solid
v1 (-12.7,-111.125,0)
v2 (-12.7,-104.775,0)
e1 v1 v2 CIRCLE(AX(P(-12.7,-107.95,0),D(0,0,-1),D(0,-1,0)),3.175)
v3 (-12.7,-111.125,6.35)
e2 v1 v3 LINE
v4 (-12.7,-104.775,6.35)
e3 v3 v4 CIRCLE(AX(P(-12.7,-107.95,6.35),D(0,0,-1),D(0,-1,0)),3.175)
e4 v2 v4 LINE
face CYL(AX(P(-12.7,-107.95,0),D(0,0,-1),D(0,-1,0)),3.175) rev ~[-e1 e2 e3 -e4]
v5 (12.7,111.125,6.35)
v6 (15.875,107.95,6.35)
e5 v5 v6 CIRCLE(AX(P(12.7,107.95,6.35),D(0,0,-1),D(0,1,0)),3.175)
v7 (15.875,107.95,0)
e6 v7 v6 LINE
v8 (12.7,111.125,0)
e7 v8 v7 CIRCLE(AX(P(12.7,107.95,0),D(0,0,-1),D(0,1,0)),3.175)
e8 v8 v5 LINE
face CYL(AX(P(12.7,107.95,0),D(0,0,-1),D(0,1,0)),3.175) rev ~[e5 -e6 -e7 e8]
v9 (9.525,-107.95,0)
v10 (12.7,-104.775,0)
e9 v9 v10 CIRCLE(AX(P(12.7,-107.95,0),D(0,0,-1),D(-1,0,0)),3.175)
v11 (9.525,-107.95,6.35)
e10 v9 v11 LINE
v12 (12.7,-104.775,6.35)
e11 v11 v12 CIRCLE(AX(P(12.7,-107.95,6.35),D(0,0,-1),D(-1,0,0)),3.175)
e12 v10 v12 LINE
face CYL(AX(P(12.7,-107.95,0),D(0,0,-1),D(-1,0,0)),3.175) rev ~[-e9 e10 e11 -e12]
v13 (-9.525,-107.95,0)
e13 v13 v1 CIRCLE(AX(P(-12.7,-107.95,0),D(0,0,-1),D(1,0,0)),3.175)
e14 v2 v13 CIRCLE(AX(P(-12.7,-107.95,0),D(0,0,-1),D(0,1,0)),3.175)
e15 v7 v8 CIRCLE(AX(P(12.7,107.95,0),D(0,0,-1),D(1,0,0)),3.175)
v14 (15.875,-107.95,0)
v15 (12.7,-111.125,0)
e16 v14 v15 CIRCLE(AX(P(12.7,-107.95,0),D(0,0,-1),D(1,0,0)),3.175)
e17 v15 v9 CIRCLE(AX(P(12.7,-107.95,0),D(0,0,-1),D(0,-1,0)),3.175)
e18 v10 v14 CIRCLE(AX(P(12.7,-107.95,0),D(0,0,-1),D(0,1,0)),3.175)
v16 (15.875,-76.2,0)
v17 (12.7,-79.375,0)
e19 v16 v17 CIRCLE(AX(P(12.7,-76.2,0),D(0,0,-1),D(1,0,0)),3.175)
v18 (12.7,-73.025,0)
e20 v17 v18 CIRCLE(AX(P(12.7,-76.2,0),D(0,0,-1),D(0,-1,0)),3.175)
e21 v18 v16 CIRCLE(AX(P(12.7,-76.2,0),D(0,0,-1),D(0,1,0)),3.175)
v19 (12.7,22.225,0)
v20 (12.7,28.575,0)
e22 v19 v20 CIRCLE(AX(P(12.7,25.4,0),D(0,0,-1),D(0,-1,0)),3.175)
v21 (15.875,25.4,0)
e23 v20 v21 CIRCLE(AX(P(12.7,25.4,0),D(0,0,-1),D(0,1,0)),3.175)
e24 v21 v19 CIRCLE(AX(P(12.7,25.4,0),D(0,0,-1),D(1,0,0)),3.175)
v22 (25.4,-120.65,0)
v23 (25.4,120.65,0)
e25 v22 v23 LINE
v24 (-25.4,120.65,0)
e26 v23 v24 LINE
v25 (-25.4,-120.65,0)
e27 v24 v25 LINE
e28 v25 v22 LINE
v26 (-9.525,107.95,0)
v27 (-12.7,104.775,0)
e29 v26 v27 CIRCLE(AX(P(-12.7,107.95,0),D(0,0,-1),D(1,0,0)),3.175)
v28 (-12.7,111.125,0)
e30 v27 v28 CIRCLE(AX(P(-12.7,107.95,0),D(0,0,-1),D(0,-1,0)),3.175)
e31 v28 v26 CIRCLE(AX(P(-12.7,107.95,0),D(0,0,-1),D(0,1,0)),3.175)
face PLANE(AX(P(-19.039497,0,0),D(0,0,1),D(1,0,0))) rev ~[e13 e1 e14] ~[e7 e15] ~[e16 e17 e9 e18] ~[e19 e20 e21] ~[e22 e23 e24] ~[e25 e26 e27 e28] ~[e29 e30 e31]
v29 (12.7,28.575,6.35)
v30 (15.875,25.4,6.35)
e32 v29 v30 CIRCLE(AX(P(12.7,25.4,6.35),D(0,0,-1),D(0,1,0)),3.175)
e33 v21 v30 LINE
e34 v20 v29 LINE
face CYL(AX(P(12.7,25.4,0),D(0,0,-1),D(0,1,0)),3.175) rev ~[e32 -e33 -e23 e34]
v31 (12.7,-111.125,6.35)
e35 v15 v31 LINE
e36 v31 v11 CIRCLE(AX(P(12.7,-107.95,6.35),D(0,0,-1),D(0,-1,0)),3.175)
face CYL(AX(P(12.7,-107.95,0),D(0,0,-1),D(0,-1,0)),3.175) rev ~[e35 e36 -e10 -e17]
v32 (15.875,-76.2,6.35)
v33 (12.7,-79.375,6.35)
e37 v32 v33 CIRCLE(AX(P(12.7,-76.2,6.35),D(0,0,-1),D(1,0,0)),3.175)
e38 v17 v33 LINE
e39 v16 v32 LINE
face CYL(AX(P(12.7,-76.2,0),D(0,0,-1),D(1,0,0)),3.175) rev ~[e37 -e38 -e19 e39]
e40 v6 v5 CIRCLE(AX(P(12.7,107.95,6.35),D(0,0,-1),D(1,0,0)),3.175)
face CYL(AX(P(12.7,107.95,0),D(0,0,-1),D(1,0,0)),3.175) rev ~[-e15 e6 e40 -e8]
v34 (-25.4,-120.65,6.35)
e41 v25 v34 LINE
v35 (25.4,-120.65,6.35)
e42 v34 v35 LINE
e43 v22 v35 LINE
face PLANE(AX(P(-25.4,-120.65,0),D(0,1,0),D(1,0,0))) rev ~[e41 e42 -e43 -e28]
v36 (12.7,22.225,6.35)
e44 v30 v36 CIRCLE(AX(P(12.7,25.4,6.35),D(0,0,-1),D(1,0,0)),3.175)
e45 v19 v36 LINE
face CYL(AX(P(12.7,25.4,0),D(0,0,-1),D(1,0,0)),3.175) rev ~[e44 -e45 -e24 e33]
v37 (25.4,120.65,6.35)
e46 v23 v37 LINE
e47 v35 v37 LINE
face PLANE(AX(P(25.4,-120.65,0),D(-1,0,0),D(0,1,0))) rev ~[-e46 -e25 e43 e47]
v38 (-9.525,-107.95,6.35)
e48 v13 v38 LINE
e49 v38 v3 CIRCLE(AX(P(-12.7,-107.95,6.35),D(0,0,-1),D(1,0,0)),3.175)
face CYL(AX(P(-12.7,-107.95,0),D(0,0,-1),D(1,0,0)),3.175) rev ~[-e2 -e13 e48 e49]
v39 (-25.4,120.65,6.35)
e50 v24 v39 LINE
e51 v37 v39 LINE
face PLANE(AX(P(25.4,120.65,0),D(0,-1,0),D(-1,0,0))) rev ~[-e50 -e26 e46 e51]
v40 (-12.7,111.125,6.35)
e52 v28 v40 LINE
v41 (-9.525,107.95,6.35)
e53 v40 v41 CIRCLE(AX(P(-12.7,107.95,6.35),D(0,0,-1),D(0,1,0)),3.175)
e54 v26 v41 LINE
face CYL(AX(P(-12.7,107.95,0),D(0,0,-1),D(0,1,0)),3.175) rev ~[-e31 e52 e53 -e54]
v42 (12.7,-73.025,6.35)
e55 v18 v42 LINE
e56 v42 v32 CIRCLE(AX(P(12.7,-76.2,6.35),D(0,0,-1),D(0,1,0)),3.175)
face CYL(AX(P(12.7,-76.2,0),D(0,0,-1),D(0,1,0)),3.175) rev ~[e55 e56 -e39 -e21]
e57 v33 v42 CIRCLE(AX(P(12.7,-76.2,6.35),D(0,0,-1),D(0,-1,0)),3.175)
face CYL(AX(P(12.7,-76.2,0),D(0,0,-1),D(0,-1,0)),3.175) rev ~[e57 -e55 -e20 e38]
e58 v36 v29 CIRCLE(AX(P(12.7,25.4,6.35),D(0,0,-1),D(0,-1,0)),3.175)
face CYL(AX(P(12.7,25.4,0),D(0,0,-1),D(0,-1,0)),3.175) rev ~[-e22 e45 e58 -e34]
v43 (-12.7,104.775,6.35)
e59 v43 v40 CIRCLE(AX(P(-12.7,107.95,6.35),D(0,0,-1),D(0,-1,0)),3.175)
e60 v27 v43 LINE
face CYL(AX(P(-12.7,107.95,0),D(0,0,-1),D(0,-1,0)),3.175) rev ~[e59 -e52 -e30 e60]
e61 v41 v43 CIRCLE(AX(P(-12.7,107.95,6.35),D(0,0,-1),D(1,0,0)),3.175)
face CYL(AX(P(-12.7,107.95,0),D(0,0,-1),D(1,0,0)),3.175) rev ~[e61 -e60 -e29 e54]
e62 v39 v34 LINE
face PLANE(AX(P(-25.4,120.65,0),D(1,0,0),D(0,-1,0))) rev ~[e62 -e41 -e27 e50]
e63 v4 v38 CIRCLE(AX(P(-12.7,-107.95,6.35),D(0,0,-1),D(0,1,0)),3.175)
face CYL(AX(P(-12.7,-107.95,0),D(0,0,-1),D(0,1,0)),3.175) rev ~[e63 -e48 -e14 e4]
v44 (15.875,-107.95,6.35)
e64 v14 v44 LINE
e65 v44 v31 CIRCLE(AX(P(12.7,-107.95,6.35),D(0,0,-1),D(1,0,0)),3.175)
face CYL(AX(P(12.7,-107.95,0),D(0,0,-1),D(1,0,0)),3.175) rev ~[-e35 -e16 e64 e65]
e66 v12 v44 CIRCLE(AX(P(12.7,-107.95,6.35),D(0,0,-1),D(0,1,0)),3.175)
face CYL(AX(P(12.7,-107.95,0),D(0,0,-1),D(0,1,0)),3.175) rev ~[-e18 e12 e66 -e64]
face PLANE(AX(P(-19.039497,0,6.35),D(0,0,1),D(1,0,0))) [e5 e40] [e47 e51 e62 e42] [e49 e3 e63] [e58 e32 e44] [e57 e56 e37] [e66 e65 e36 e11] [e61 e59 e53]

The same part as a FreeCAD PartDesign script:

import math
import FreeCAD as App
import Part
import Sketcher
Q = App.Units.Quantity

doc = App.newDocument("Part")
params = doc.addObject("Spreadsheet::Sheet", "Params")
for row, (alias, value) in enumerate([
    ("sketch1_width", "2 in"),
    ("sketch1_height", "9.5 in"),
    ("sketch1_radius", "0.125 in"),
    ("pad1_length", "0.25 in"),
], start=1):
    params.set(f"A{row}", alias)
    params.set(f"B{row}", "=" + value)
    params.setAlias(f"B{row}", alias)

body = doc.addObject("PartDesign::Body", "Body")

sketch1 = body.newObject("Sketcher::SketchObject", "Sketch")
sketch1.AttachmentSupport = (doc.getObject("XY_Plane"), [""])
sketch1.MapMode = "FlatFace"
sketch1.addGeometry(Part.LineSegment(App.Vector(-25.4, 120.7, 0), App.Vector(-25.4, -120.7, 0)), False)
sketch1.addGeometry(Part.LineSegment(App.Vector(-25.4, -120.7, 0), App.Vector(25.4, -120.7, 0)), False)
sketch1.addGeometry(Part.LineSegment(App.Vector(25.4, -120.7, 0), App.Vector(25.4, 120.7, 0)), False)
sketch1.addGeometry(Part.LineSegment(App.Vector(25.4, 120.7, 0), App.Vector(-25.4, 120.7, 0)), False)
sketch1.addGeometry(Part.ArcOfCircle(Part.Circle(App.Vector(12.7, -108, 0), App.Vector(0, 0, 1), 3.2), math.radians(180), math.radians(270)), False)
sketch1.addGeometry(Part.ArcOfCircle(Part.Circle(App.Vector(12.7, -108, 0), App.Vector(0, 0, 1), 3.2), math.radians(90), math.radians(180)), False)
sketch1.addGeometry(Part.ArcOfCircle(Part.Circle(App.Vector(12.7, -108, 0), App.Vector(0, 0, 1), 3.2), math.radians(0), math.radians(90)), False)
sketch1.addGeometry(Part.ArcOfCircle(Part.Circle(App.Vector(12.7, -108, 0), App.Vector(0, 0, 1), 3.2), math.radians(-90), math.radians(0)), False)
sketch1.addGeometry(Part.ArcOfCircle(Part.Circle(App.Vector(-12.7, -108, 0), App.Vector(0, 0, 1), 3.2), math.radians(90), math.radians(270)), False)
sketch1.addGeometry(Part.ArcOfCircle(Part.Circle(App.Vector(-12.7, -108, 0), App.Vector(0, 0, 1), 3.2), math.radians(0), math.radians(90)), False)
sketch1.addGeometry(Part.ArcOfCircle(Part.Circle(App.Vector(-12.7, -108, 0), App.Vector(0, 0, 1), 3.2), math.radians(-90), math.radians(0)), False)
sketch1.addGeometry(Part.ArcOfCircle(Part.Circle(App.Vector(12.7, -76.2, 0), App.Vector(0, 0, 1), 3.2), math.radians(0), math.radians(90)), False)
sketch1.addGeometry(Part.ArcOfCircle(Part.Circle(App.Vector(12.7, -76.2, 0), App.Vector(0, 0, 1), 3.2), math.radians(-90), math.radians(0)), False)
sketch1.addGeometry(Part.ArcOfCircle(Part.Circle(App.Vector(12.7, -76.2, 0), App.Vector(0, 0, 1), 3.2), math.radians(90), math.radians(270)), False)
sketch1.addGeometry(Part.ArcOfCircle(Part.Circle(App.Vector(-12.7, 108, 0), App.Vector(0, 0, 1), 3.2), math.radians(90), math.radians(270)), False)
sketch1.addGeometry(Part.ArcOfCircle(Part.Circle(App.Vector(-12.7, 108, 0), App.Vector(0, 0, 1), 3.2), math.radians(0), math.radians(90)), False)
sketch1.addGeometry(Part.ArcOfCircle(Part.Circle(App.Vector(-12.7, 108, 0), App.Vector(0, 0, 1), 3.2), math.radians(-90), math.radians(0)), False)
sketch1.addGeometry(Part.ArcOfCircle(Part.Circle(App.Vector(12.7, 25.4, 0), App.Vector(0, 0, 1), 3.2), math.radians(0), math.radians(90)), False)
sketch1.addGeometry(Part.ArcOfCircle(Part.Circle(App.Vector(12.7, 25.4, 0), App.Vector(0, 0, 1), 3.2), math.radians(-90), math.radians(0)), False)
sketch1.addGeometry(Part.ArcOfCircle(Part.Circle(App.Vector(12.7, 25.4, 0), App.Vector(0, 0, 1), 3.2), math.radians(90), math.radians(270)), False)
sketch1.addGeometry(Part.ArcOfCircle(Part.Circle(App.Vector(12.7, 108, 0), App.Vector(0, 0, 1), 3.2), math.radians(0), math.radians(90)), False)
sketch1.addGeometry(Part.ArcOfCircle(Part.Circle(App.Vector(12.7, 108, 0), App.Vector(0, 0, 1), 3.2), math.radians(90), math.radians(360)), False)
sketch1.addConstraint(Sketcher.Constraint("Coincident", 0, 2, 1, 1))
sketch1.addConstraint(Sketcher.Constraint("Coincident", 1, 2, 2, 1))
sketch1.addConstraint(Sketcher.Constraint("Coincident", 2, 2, 3, 1))
sketch1.addConstraint(Sketcher.Constraint("Coincident", 3, 2, 0, 1))
sketch1.addConstraint(Sketcher.Constraint("Tangent", 4, 1, 5, 2))
sketch1.addConstraint(Sketcher.Constraint("Tangent", 5, 1, 6, 2))
sketch1.addConstraint(Sketcher.Constraint("Tangent", 6, 1, 7, 2))
sketch1.addConstraint(Sketcher.Constraint("Tangent", 7, 1, 4, 2))
sketch1.addConstraint(Sketcher.Constraint("Tangent", 8, 1, 9, 2))
sketch1.addConstraint(Sketcher.Constraint("Tangent", 9, 1, 10, 2))
sketch1.addConstraint(Sketcher.Constraint("Tangent", 10, 1, 8, 2))
sketch1.addConstraint(Sketcher.Constraint("Tangent", 11, 1, 12, 2))
sketch1.addConstraint(Sketcher.Constraint("Tangent", 12, 1, 13, 2))
sketch1.addConstraint(Sketcher.Constraint("Tangent", 13, 1, 11, 2))
sketch1.addConstraint(Sketcher.Constraint("Tangent", 14, 1, 15, 2))
sketch1.addConstraint(Sketcher.Constraint("Tangent", 15, 1, 16, 2))
sketch1.addConstraint(Sketcher.Constraint("Tangent", 16, 1, 14, 2))
sketch1.addConstraint(Sketcher.Constraint("Tangent", 17, 1, 18, 2))
sketch1.addConstraint(Sketcher.Constraint("Tangent", 18, 1, 19, 2))
sketch1.addConstraint(Sketcher.Constraint("Tangent", 19, 1, 17, 2))
sketch1.addConstraint(Sketcher.Constraint("Tangent", 20, 1, 21, 2))
sketch1.addConstraint(Sketcher.Constraint("Coincident", 21, 1, 20, 2))
sketch1.addConstraint(Sketcher.Constraint("Vertical", 0))
sketch1.addConstraint(Sketcher.Constraint("Horizontal", 1))
sketch1.addConstraint(Sketcher.Constraint("Vertical", 2))
sketch1.addConstraint(Sketcher.Constraint("Horizontal", 3))
sketch1.addConstraint(Sketcher.Constraint("Equal", 4, 5))
sketch1.addConstraint(Sketcher.Constraint("Equal", 7, 8))
sketch1.addConstraint(Sketcher.Constraint("Equal", 10, 11))
sketch1.addConstraint(Sketcher.Constraint("Equal", 13, 14))
sketch1.addConstraint(Sketcher.Constraint("Equal", 16, 17))
sketch1.addConstraint(Sketcher.Constraint("Equal", 19, 20))
sketch1.addConstraint(Sketcher.Constraint("Symmetric", 4, 3, 14, 3, -1, 1))
sketch1.addConstraint(Sketcher.Constraint("Symmetric", 8, 3, 20, 3, -1, 1))
sketch1.addConstraint(Sketcher.Constraint("Symmetric", 0, 2, 2, 2, -1, 1))
sketch1.addConstraint(Sketcher.Constraint("Symmetric", 4, 3, 8, 3, -2))
sketch1.addConstraint(Sketcher.Constraint("Horizontal", 10, 3, 4, 1))
sketch1.addConstraint(Sketcher.Constraint("Horizontal", 4, 1, 6, 1))
sketch1.addConstraint(Sketcher.Constraint("Horizontal", 6, 1, 9, 1))
sketch1.addConstraint(Sketcher.Constraint("Horizontal", 13, 3, 11, 1))
sketch1.addConstraint(Sketcher.Constraint("Horizontal", 21, 3, 15, 1))
sketch1.addConstraint(Sketcher.Constraint("Horizontal", 19, 3, 17, 1))
sketch1.addConstraint(Sketcher.Constraint("Horizontal", 15, 1, 20, 1))
sketch1.addConstraint(Sketcher.Constraint("Vertical", 7, 3, 11, 3))
sketch1.addConstraint(Sketcher.Constraint("Vertical", 13, 3, 17, 3))
sketch1.addConstraint(Sketcher.Constraint("Vertical", 21, 3, 5, 1))
sketch1.addConstraint(Sketcher.Constraint("Vertical", 5, 1, 7, 1))
sketch1.addConstraint(Sketcher.Constraint("Vertical", 16, 3, 8, 1))
sketch1.addConstraint(Sketcher.Constraint("Vertical", 8, 1, 10, 1))
sketch1.addConstraint(Sketcher.Constraint("Vertical", 7, 1, 12, 1))
sketch1.addConstraint(Sketcher.Constraint("Vertical", 12, 1, 13, 1))
sketch1.addConstraint(Sketcher.Constraint("Vertical", 10, 1, 14, 1))
sketch1.addConstraint(Sketcher.Constraint("Vertical", 14, 1, 16, 1))
sketch1.addConstraint(Sketcher.Constraint("Vertical", 13, 1, 18, 1))
sketch1.addConstraint(Sketcher.Constraint("Vertical", 18, 1, 19, 1))
sketch1.addConstraint(Sketcher.Constraint("Vertical", 19, 1, 21, 1))
sketch1.addConstraint(Sketcher.Constraint("DistanceX", 1, 1, 1, 2, Q("2 in")))
sketch1.addConstraint(Sketcher.Constraint("DistanceY", 0, 2, 0, 1, Q("9.5 in")))
sketch1.addConstraint(Sketcher.Constraint("DistanceY", 11, 3, -1, 1, Q("3 in")))
sketch1.addConstraint(Sketcher.Constraint("DistanceY", -1, 1, 17, 3, Q("1 in")))
sketch1.addConstraint(Sketcher.Constraint("Radius", 4, Q("0.125 in")))
sketch1.addConstraint(Sketcher.Constraint("DistanceX", 8, 3, 4, 3, Q("1 in")))
sketch1.addConstraint(Sketcher.Constraint("DistanceY", 5, 1, 12, 1, Q("1 in")))
sketch1.setExpression("Constraints[56]", "Params.sketch1_width")
sketch1.setExpression("Constraints[57]", "Params.sketch1_height")
sketch1.setExpression("Constraints[60]", "Params.sketch1_radius")
pad1 = body.newObject("PartDesign::Pad", "Pad")
pad1.Profile = sketch1
pad1.setExpression("Length", "Params.pad1_length")

doc.recompute()
